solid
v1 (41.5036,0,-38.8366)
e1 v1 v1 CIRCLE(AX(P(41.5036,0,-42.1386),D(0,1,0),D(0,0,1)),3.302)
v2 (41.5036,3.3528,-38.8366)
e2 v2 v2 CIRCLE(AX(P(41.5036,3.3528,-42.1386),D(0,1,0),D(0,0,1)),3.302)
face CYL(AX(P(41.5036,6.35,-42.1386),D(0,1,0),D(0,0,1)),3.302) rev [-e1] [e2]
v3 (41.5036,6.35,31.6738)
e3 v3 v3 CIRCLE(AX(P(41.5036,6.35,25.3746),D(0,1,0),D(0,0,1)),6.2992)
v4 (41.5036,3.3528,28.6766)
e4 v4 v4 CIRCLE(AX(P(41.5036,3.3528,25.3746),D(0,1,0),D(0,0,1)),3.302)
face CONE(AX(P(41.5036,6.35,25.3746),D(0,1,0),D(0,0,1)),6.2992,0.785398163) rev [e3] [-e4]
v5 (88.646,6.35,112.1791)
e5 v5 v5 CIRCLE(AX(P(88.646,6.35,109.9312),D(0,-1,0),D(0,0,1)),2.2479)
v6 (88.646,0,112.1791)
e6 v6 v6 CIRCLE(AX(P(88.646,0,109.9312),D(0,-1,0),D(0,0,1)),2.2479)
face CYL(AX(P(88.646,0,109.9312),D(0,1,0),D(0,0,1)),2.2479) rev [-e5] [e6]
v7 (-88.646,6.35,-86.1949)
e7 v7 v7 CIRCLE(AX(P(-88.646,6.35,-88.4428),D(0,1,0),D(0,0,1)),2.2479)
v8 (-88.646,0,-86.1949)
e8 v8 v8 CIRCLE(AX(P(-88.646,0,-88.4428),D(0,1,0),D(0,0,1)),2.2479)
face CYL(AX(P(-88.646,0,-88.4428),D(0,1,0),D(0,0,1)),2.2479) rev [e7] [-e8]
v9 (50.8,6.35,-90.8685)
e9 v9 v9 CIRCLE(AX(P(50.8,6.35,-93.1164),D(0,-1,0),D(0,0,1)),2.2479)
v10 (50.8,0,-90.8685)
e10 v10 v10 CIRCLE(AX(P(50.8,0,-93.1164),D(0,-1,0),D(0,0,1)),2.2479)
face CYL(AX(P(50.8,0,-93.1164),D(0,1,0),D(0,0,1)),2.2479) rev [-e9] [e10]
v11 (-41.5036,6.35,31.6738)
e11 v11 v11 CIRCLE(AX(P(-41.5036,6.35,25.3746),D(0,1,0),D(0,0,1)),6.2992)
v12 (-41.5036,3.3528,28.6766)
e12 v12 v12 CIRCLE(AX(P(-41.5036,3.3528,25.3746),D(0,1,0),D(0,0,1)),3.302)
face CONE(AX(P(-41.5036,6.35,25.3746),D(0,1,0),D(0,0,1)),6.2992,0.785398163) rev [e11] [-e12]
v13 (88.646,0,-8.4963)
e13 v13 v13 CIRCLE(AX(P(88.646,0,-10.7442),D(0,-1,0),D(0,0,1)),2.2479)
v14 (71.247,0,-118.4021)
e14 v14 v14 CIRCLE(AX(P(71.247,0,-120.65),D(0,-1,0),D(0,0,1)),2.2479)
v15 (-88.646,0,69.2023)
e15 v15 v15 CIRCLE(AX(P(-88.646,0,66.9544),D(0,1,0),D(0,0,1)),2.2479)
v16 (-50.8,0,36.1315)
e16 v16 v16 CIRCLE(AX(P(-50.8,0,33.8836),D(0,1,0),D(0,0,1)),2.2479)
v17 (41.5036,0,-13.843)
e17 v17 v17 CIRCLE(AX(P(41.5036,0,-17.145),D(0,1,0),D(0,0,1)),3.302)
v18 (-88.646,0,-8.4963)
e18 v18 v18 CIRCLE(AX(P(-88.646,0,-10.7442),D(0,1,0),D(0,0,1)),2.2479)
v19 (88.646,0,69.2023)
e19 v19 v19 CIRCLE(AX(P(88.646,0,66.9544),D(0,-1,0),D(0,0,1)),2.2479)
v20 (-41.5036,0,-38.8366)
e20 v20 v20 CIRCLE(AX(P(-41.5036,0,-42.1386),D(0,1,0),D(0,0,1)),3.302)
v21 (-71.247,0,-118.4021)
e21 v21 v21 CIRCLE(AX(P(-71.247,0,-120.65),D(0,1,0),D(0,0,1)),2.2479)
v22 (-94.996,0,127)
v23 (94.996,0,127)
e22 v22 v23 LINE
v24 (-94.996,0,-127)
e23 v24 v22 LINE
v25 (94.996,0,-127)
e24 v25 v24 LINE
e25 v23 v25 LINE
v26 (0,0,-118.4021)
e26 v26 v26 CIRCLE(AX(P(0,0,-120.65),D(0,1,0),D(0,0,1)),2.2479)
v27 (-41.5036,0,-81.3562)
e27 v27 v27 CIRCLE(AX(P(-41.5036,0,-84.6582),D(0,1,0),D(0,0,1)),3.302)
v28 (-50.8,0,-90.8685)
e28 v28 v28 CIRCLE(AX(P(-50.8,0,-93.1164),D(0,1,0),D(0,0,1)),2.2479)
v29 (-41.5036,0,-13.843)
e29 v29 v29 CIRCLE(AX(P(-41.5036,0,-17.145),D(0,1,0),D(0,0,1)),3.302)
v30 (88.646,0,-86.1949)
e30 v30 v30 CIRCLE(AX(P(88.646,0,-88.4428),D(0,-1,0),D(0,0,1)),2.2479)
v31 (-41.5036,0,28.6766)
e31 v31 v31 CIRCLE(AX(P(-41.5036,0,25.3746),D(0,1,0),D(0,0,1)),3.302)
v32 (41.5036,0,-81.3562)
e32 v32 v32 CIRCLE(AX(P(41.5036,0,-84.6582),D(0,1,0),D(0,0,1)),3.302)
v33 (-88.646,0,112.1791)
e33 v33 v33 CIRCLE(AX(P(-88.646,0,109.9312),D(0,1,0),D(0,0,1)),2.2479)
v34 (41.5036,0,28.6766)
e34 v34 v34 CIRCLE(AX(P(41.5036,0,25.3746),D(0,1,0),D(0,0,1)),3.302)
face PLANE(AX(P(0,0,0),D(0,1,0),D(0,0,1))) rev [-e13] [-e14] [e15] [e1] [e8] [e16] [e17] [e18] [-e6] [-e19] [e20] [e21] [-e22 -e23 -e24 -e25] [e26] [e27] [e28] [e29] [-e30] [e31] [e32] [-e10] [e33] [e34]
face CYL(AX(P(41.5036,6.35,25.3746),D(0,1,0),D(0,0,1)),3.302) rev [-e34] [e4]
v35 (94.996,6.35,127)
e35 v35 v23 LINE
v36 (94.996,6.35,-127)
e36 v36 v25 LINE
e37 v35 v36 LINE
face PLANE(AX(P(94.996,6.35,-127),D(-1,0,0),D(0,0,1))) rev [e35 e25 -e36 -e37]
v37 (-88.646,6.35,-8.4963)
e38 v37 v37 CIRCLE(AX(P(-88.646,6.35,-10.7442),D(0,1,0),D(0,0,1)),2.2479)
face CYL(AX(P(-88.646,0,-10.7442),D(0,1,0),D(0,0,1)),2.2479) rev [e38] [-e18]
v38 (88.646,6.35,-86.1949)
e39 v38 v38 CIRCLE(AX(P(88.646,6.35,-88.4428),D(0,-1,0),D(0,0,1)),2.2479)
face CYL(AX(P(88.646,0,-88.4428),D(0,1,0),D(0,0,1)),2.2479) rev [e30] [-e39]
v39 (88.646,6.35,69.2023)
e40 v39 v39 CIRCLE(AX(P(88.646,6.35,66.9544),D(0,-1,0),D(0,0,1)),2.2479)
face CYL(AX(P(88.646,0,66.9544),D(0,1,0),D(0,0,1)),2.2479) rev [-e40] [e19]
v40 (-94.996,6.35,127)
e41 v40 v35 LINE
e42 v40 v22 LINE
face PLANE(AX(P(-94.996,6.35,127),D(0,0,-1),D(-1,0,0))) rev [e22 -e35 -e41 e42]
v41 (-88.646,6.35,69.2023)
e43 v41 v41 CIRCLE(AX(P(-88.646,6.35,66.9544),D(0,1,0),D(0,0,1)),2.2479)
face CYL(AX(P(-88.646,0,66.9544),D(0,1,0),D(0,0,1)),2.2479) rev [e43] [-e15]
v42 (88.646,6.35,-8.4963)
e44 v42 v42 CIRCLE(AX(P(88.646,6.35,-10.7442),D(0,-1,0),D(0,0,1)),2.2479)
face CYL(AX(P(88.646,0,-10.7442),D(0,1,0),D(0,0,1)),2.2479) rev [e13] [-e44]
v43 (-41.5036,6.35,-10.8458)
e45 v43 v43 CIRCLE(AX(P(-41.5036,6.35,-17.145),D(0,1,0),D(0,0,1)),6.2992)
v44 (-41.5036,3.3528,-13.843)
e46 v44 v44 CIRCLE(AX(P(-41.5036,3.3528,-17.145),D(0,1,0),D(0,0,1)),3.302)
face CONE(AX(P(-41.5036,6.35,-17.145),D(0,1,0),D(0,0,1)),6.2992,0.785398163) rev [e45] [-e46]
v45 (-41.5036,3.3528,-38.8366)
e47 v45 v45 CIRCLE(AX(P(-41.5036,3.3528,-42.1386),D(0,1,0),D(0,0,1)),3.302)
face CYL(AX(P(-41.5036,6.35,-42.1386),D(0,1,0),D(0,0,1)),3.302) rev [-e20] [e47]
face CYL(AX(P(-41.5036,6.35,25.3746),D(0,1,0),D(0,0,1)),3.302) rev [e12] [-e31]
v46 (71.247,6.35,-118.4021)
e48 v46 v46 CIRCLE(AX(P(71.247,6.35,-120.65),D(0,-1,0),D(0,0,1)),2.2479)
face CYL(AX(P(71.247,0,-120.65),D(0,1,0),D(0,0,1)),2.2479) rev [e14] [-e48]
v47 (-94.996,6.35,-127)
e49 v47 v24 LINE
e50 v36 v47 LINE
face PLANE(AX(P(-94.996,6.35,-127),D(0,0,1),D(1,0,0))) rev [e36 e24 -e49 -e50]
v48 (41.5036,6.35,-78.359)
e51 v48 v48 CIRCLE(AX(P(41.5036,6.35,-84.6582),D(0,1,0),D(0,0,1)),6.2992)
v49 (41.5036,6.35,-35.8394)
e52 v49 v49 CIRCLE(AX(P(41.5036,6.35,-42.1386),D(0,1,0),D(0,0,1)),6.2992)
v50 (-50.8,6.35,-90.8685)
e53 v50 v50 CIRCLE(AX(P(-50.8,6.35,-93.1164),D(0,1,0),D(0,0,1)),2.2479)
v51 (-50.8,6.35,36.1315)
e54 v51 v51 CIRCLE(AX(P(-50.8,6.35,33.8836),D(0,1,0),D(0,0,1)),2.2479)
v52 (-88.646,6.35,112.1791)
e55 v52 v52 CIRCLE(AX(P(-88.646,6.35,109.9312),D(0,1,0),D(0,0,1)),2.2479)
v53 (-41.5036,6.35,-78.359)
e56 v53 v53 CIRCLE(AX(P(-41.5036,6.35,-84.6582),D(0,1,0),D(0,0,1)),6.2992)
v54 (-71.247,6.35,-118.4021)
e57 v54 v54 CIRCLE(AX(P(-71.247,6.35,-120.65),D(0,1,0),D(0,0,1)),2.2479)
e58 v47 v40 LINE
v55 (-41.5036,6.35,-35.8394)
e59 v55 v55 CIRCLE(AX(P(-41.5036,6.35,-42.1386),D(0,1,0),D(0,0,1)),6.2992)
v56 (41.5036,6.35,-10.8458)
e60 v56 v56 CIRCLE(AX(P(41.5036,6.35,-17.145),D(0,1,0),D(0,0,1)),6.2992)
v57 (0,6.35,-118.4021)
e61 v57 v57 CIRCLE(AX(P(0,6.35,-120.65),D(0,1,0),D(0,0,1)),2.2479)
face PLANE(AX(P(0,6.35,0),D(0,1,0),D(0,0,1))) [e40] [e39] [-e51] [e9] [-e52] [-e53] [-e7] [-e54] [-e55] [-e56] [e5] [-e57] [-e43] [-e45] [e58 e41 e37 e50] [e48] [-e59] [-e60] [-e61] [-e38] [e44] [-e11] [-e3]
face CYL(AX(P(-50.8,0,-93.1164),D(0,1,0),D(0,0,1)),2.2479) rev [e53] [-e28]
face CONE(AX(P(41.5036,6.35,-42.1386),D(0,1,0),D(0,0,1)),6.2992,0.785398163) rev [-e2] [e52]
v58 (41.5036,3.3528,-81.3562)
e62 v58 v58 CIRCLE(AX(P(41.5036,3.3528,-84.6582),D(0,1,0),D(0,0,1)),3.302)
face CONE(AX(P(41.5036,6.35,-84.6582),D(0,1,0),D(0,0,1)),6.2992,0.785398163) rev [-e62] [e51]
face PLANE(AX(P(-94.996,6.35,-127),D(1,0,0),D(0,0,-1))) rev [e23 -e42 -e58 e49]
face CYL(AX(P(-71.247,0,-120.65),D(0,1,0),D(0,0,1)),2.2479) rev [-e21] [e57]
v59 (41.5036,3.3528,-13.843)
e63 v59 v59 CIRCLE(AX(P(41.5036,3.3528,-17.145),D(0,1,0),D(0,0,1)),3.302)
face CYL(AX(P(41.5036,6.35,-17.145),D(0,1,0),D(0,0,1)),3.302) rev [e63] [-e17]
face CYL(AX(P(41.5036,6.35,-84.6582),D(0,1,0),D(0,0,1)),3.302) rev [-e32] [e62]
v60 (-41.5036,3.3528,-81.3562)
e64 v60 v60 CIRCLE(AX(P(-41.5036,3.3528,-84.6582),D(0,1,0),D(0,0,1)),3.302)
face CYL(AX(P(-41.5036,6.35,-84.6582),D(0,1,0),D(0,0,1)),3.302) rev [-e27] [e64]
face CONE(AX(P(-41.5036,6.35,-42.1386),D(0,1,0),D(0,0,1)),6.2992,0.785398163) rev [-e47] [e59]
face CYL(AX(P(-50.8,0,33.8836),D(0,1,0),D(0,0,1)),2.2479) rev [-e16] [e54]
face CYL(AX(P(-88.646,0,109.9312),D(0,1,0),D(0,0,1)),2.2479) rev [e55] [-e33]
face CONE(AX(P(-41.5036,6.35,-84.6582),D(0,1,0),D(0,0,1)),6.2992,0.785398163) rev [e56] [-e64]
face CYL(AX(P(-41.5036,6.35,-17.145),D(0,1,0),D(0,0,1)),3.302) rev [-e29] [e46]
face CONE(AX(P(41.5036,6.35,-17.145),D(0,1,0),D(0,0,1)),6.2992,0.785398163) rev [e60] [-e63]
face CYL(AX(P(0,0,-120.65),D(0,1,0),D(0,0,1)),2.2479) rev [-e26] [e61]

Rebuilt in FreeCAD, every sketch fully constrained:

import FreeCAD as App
import Part
import Sketcher
Q = App.Units.Quantity


def add_polygon(sketch, points):
    """Adds a closed chain of lines whose ends are joined by coincident constraints."""
    first, n = sketch.GeometryCount, len(points)
    for a, b in zip(points, points[1:] + points[:1]):
        sketch.addGeometry(Part.LineSegment(App.Vector(*a, 0), App.Vector(*b, 0)), False)
    for i in range(n):
        sketch.addConstraint(Sketcher.Constraint("Coincident", first + i, 2, first + (i + 1) % n, 1))

doc = App.newDocument("Part")
body = doc.addObject("PartDesign::Body", "Body")

sketch1 = body.newObject("Sketcher::SketchObject", "Sketch")
sketch1.AttachmentSupport = (doc.getObject("XZ_Plane"), [""])
sketch1.MapMode = "FlatFace"
add_polygon(sketch1, [(-95, -127), (-95, 127), (95, 127), (95, -127)])
sketch1.addConstraint([
    Sketcher.Constraint("Vertical", 0),
    Sketcher.Constraint("Horizontal", 1),
    Sketcher.Constraint("Vertical", 2),
    Sketcher.Constraint("Horizontal", 3),
    Sketcher.Constraint("Symmetric", 0, 2, 2, 2, -1, 1),
    Sketcher.Constraint("DistanceY", 0, 1, 0, 2, Q("10 in")),
    Sketcher.Constraint("DistanceX", 1, 1, 1, 2, Q("7.48 in")),
])
pad1 = body.newObject("PartDesign::Pad", "Pad")
pad1.Profile = sketch1
pad1.Length = Q("0.25 in")
pad1.Reversed = True

sketch2 = body.newObject("Sketcher::SketchObject", "Sketch001")
sketch2.AttachmentSupport = (doc.getObject("XZ_Plane"), [""])
sketch2.MapMode = "FlatFace"
sketch2.AttachmentOffset = App.Placement(App.Vector(0, 0, -0.25 * 25.4), App.Rotation())
sketch2.addGeometry([
    Part.Circle(App.Vector(-88.6, 109.9, 0), App.Vector(0, 0, 1), 2.2),
    Part.Circle(App.Vector(-88.6, 67, 0), App.Vector(0, 0, 1), 2.2),
    Part.Circle(App.Vector(-88.6, -10.7, 0), App.Vector(0, 0, 1), 2.2),
    Part.Circle(App.Vector(-88.6, -88.4, 0), App.Vector(0, 0, 1), 2.2),
    Part.Circle(App.Vector(-50.8, -93.1, 0), App.Vector(0, 0, 1), 2.2),
    Part.Circle(App.Vector(-71.2, -120.7, 0), App.Vector(0, 0, 1), 2.2),
    Part.Circle(App.Vector(0, -120.7, 0), App.Vector(0, 0, 1), 2.2),
], False)
sketch2.addConstraint([
    Sketcher.Constraint("Equal", 0, 1),
    Sketcher.Constraint("Equal", 1, 2),
    Sketcher.Constraint("Equal", 2, 3),
    Sketcher.Constraint("Equal", 3, 4),
    Sketcher.Constraint("Equal", 4, 5),
    Sketcher.Constraint("Equal", 5, 6),
    Sketcher.Constraint("PointOnObject", 6, 3, -2),
    Sketcher.Constraint("Horizontal", 5, 3, 6, 3),
    Sketcher.Constraint("Vertical", 0, 3, 1, 3),
    Sketcher.Constraint("Vertical", 1, 3, 2, 3),
    Sketcher.Constraint("Vertical", 2, 3, 3, 3),
    Sketcher.Constraint("Diameter", 0, Q("0.177 in")),
    Sketcher.Constraint("DistanceX", 4, 3, -1, 1, Q("2 in")),
    Sketcher.Constraint("DistanceX", 0, 3, -1, 1, Q("3.49 in")),
    Sketcher.Constraint("DistanceY", 5, 3, -1, 1, Q("4.75 in")),
    Sketcher.Constraint("DistanceY", 3, 3, 0, 3, Q("7.81 in")),
    Sketcher.Constraint("DistanceY", -1, 1, 0, 3, Q("4.328 in")),
    Sketcher.Constraint("DistanceY", -1, 1, 1, 3, Q("2.636 in")),
    Sketcher.Constraint("DistanceY", 2, 3, -1, 1, Q("0.423 in")),
    Sketcher.Constraint("DistanceY", 4, 3, -1, 1, Q("3.666 in")),
    Sketcher.Constraint("DistanceX", 5, 3, -1, 1, Q("2.805 in")),
])
pocket1 = body.newObject("PartDesign::Pocket", "Pocket")
pocket1.Profile = sketch2
pocket1.Type = "ThroughAll"
pocket1.Reversed = True
doc.recompute()

mirrored = body.newObject("PartDesign::Mirrored", "Mirrored")
mirrored.Originals = [pocket1]
mirrored.MirrorPlane = (doc.getObject("YZ_Plane"), [""])
body.Tip = mirrored

sketch3 = body.newObject("Sketcher::SketchObject", "Sketch002")
sketch3.AttachmentSupport = (doc.getObject("XZ_Plane"), [""])
sketch3.MapMode = "FlatFace"
sketch3.AttachmentOffset = App.Placement(App.Vector(0, 0, -0.25 * 25.4), App.Rotation())
sketch3.addGeometry(Part.Circle(App.Vector(-50.8, 33.9, 0), App.Vector(0, 0, 1), 2.2), False)
sketch3.addConstraint([
    Sketcher.Constraint("Diameter", 0, Q("0.177 in")),
    Sketcher.Constraint("DistanceX", 0, 3, -1, 1, Q("2 in")),
    Sketcher.Constraint("DistanceY", -1, 1, 0, 3, Q("1.334 in")),
])
pocket2 = body.newObject("PartDesign::Pocket", "Pocket001")
pocket2.Profile = sketch3
pocket2.Type = "ThroughAll"
pocket2.Reversed = True

sketch4 = body.newObject("Sketcher::SketchObject", "Sketch003")
sketch4.AttachmentSupport = (doc.getObject("YZ_Plane"), [""])
sketch4.MapMode = "FlatFace"
sketch4.AttachmentOffset = App.Placement(App.Vector(0, 0, -1.634 * 25.4), App.Rotation())
add_polygon(sketch4, [(-40.6, -17.1), (6.3, -17.1), (6.3, -10.8), (3.4, -13.8), (-38.6, -13.8)])
sketch4.addGeometry(Part.LineSegment(App.Vector(6.3, -17.1, 0), App.Vector(-40.6, -17.1, 0)), True)
sketch4.addConstraint([
    Sketcher.Constraint("Horizontal", 0),
    Sketcher.Constraint("Vertical", 1),
    Sketcher.Constraint("Horizontal", 3),
    Sketcher.Constraint("Horizontal", 5),
    Sketcher.Constraint("Coincident", 5, 1, 0, 2),
    Sketcher.Constraint("Equal", 0, 5),
    Sketcher.Constraint("Angle", 2, Q("-135 deg")),
    Sketcher.Constraint("Angle", 4, Q("-121 deg")),
    Sketcher.Constraint("DistanceY", 1, 1, 1, 2, Q("0.248 in")),
    Sketcher.Constraint("DistanceX", -1, 1, 0, 2, Q("0.25 in")),
    Sketcher.Constraint("DistanceY", 0, 2, 2, 2, Q("0.13 in")),
    Sketcher.Constraint("DistanceY", 0, 2, -1, 1, Q("0.675 in")),
    Sketcher.Constraint("DistanceX", 3, 2, 3, 1, Q("42.0028 mm")),
])
groove = body.newObject("PartDesign::Groove", "Groove")
groove.Profile = sketch4
groove.ReferenceAxis = (sketch4, ["Axis0"])
groove.Angle = 360
doc.recompute()

linearpattern = body.newObject("PartDesign::LinearPattern", "LinearPattern")
linearpattern.Originals = [groove]
linearpattern.Direction = (doc.getObject("Z_Axis"), [""])
linearpattern.Mode = "offset"
linearpattern.Offset = Q("1.674 in")
linearpattern.Occurrences = 2
body.Tip = linearpattern
doc.recompute()

linearpattern2 = body.newObject("PartDesign::LinearPattern", "LinearPattern001")
linearpattern2.Originals = [groove]
linearpattern2.Direction = (doc.getObject("Z_Axis"), [""])
linearpattern2.Mode = "offset"
linearpattern2.Offset = Q("0.984 in")
linearpattern2.Occurrences = 2
linearpattern2.Reversed = True
body.Tip = linearpattern2
doc.recompute()

linearpattern3 = body.newObject("PartDesign::LinearPattern", "LinearPattern002")
linearpattern3.Originals = [groove]
linearpattern3.Direction = (doc.getObject("Z_Axis"), [""])
linearpattern3.Mode = "offset"
linearpattern3.Offset = Q("2.658 in")
linearpattern3.Occurrences = 2
linearpattern3.Reversed = True
body.Tip = linearpattern3
doc.recompute()

mirrored2 = body.newObject("PartDesign::Mirrored", "Mirrored001")
mirrored2.Originals = [groove]
mirrored2.MirrorPlane = (doc.getObject("YZ_Plane"), [""])
body.Tip = mirrored2

sketch5 = body.newObject("Sketcher::SketchObject", "Sketch004")
sketch5.AttachmentSupport = (doc.getObject("YZ_Plane"), [""])
sketch5.MapMode = "FlatFace"
sketch5.AttachmentOffset = App.Placement(App.Vector(0, 0, 1.634 * 25.4), App.Rotation())
add_polygon(sketch5, [(6.3, 25.4), (-40.6, 25.4), (-38.6, 28.7), (3.4, 28.7), (6.3, 31.7)])
sketch5.addGeometry(Part.LineSegment(App.Vector(-40.6, 25.4, 0), App.Vector(6.3, 25.4, 0)), True)
sketch5.addConstraint([
    Sketcher.Constraint("Horizontal", 0),
    Sketcher.Constraint("Horizontal", 2),
    Sketcher.Constraint("Vertical", 4),
    Sketcher.Constraint("Horizontal", 5),
    Sketcher.Constraint("Coincident", 5, 1, 0, 2),
    Sketcher.Constraint("Vertical", 3, 2, 5, 2),
    Sketcher.Constraint("Angle", 1, Q("59 deg")),
    Sketcher.Constraint("Angle", 3, Q("45 deg")),
    Sketcher.Constraint("DistanceY", 4, 2, 4, 1, Q("0.248 in")),
    Sketcher.Constraint("DistanceX", -1, 1, 3, 2, Q("0.25 in")),
    Sketcher.Constraint("DistanceY", 0, 2, 1, 2, Q("0.13 in")),
    Sketcher.Constraint("DistanceY", -1, 1, 0, 2, Q("0.999 in")),
    Sketcher.Constraint("DistanceX", 2, 1, 2, 2, Q("42.0028 mm")),
])
groove2 = body.newObject("PartDesign::Groove", "Groove001")
groove2.Profile = sketch5
groove2.ReferenceAxis = (sketch5, ["Axis0"])
groove2.Angle = 360

sketch6 = body.newObject("Sketcher::SketchObject", "Sketch005")
sketch6.AttachmentSupport = (doc.getObject("YZ_Plane"), [""])
sketch6.MapMode = "FlatFace"
sketch6.AttachmentOffset = App.Placement(App.Vector(0, 0, 1.634 * 25.4), App.Rotation())
add_polygon(sketch6, [(6.3, -42.1), (-40.6, -42.1), (-38.6, -38.8), (3.4, -38.8), (6.3, -35.8)])
sketch6.addGeometry(Part.LineSegment(App.Vector(-40.6, -42.1, 0), App.Vector(6.3, -42.1, 0)), True)
sketch6.addConstraint([
    Sketcher.Constraint("Horizontal", 0),
    Sketcher.Constraint("Horizontal", 2),
    Sketcher.Constraint("Vertical", 4),
    Sketcher.Constraint("Horizontal", 5),
    Sketcher.Constraint("Coincident", 5, 1, 0, 2),
    Sketcher.Constraint("Vertical", 3, 2, 5, 2),
    Sketcher.Constraint("Angle", 1, Q("59 deg")),
    Sketcher.Constraint("Angle", 3, Q("45 deg")),
    Sketcher.Constraint("DistanceY", 4, 2, 4, 1, Q("0.248 in")),
    Sketcher.Constraint("DistanceX", -1, 1, 3, 2, Q("0.25 in")),
    Sketcher.Constraint("DistanceY", 0, 2, 1, 2, Q("0.13 in")),
    Sketcher.Constraint("DistanceY", 0, 2, -1, 1, Q("1.659 in")),
    Sketcher.Constraint("DistanceX", 2, 1, 2, 2, Q("42.0028 mm")),
])
groove3 = body.newObject("PartDesign::Groove", "Groove002")
groove3.Profile = sketch6
groove3.ReferenceAxis = (sketch6, ["Axis0"])
groove3.Angle = 360

sketch7 = body.newObject("Sketcher::SketchObject", "Sketch006")
sketch7.AttachmentSupport = (doc.getObject("YZ_Plane"), [""])
sketch7.MapMode = "FlatFace"
sketch7.AttachmentOffset = App.Placement(App.Vector(0, 0, 1.634 * 25.4), App.Rotation())
add_polygon(sketch7, [(6.3, -84.7), (-40.6, -84.7), (-38.6, -81.4), (3.4, -81.4), (6.3, -78.4)])
sketch7.addGeometry(Part.LineSegment(App.Vector(-40.6, -84.7, 0), App.Vector(6.3, -84.7, 0)), True)
sketch7.addConstraint([
    Sketcher.Constraint("Horizontal", 0),
    Sketcher.Constraint("Horizontal", 2),
    Sketcher.Constraint("Vertical", 4),
    Sketcher.Constraint("Horizontal", 5),
    Sketcher.Constraint("Coincident", 5, 1, 0, 2),
    Sketcher.Constraint("Vertical", 3, 2, 5, 2),
    Sketcher.Constraint("Angle", 1, Q("59 deg")),
    Sketcher.Constraint("Angle", 3, Q("45 deg")),
    Sketcher.Constraint("DistanceY", 4, 2, 4, 1, Q("0.248 in")),
    Sketcher.Constraint("DistanceX", -1, 1, 3, 2, Q("0.25 in")),
    Sketcher.Constraint("DistanceY", 0, 2, 1, 2, Q("0.13 in")),
    Sketcher.Constraint("DistanceY", 0, 2, -1, 1, Q("3.333 in")),
    Sketcher.Constraint("DistanceX", 2, 1, 2, 2, Q("42.0028 mm")),
])
groove4 = body.newObject("PartDesign::Groove", "Groove003")
groove4.Profile = sketch7
groove4.ReferenceAxis = (sketch7, ["Axis0"])
groove4.Angle = 360

doc.recompute()
